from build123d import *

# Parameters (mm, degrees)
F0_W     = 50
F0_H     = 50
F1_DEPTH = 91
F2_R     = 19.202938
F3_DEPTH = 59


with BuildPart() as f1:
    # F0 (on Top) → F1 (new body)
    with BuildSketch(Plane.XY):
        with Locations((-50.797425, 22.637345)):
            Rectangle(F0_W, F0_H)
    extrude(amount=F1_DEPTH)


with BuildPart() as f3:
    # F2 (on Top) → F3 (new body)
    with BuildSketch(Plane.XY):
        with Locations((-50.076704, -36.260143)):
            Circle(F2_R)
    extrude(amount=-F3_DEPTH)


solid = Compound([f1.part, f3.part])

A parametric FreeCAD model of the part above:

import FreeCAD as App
import Part
import Sketcher

V = App.Vector
Q = App.Units.Quantity

doc = App.newDocument("Part")
params = doc.addObject("Spreadsheet::Sheet", "Params")
for row, (alias, value) in enumerate([
    ("sketch1_width", "50 mm"),
    ("pad1_length", "91 mm"),
    ("pad2_length", "59 mm"),
], start=1):
    params.set(f"A{row}", alias)
    params.set(f"B{row}", "=" + value)
    params.setAlias(f"B{row}", alias)

body = doc.addObject("PartDesign::Body", "Body")

# Sketch on XY plane
sketch1 = body.newObject("Sketcher::SketchObject", "Sketch")
sketch1.AttachmentSupport = (doc.getObject("XY_Plane"), [""])
sketch1.MapMode = "FlatFace"
sketch1.addGeometry([
    Part.LineSegment(V(-76, 48, 0), V(-76, -2, 0)),
    Part.LineSegment(V(-76, -2, 0), V(-26, -2, 0)),
    Part.LineSegment(V(-26, -2, 0), V(-26, 48, 0)),
    Part.LineSegment(V(-26, 48, 0), V(-76, 48, 0)),
], False)
sketch1.addConstraint([
    Sketcher.Constraint("Coincident", 0, 2, 1, 1),
    Sketcher.Constraint("Coincident", 1, 2, 2, 1),
    Sketcher.Constraint("Coincident", 2, 2, 3, 1),
    Sketcher.Constraint("Coincident", 3, 2, 0, 1),
    Sketcher.Constraint("Vertical", 0),
    Sketcher.Constraint("Horizontal", 1),
    Sketcher.Constraint("Vertical", 2),
    Sketcher.Constraint("Horizontal", 3),
    Sketcher.Constraint("Equal", 3, 0),
    Sketcher.Constraint("DistanceX", 1, 1, 1, 2, Q("50 mm")),
    Sketcher.Constraint("DistanceX", 0, 2, -1, 1, Q("75.797425 mm")),
    Sketcher.Constraint("DistanceY", 0, 2, -1, 1, Q("2.362655 mm")),
])
sketch1.setExpression("Constraints[9]", "Params.sketch1_width")
pad1 = body.newObject("PartDesign::Pad", "Pad")
pad1.Profile = sketch1
pad1.setExpression("Length", "Params.pad1_length")
body2 = doc.addObject("PartDesign::Body", "Body001")

# Sketch on XY plane
sketch2 = body2.newObject("Sketcher::SketchObject", "Sketch001")
sketch2.AttachmentSupport = (doc.getObject("XY_Plane001"), [""])
sketch2.MapMode = "FlatFace"
sketch2.addGeometry(Part.Circle(V(-50, -36, 0), V(0, 0, 1), 19), False)
sketch2.addConstraint([
    Sketcher.Constraint("Diameter", 0, Q("38.405876 mm")),
    Sketcher.Constraint("DistanceX", 0, 3, -1, 1, Q("50.076704 mm")),
    Sketcher.Constraint("DistanceY", 0, 3, -1, 1, Q("36.260143 mm")),
])
pad2 = body2.newObject("PartDesign::Pad", "Pad001")
pad2.Profile = sketch2
pad2.setExpression("Length", "Params.pad2_length")
pad2.Reversed = True

doc.recompute()
